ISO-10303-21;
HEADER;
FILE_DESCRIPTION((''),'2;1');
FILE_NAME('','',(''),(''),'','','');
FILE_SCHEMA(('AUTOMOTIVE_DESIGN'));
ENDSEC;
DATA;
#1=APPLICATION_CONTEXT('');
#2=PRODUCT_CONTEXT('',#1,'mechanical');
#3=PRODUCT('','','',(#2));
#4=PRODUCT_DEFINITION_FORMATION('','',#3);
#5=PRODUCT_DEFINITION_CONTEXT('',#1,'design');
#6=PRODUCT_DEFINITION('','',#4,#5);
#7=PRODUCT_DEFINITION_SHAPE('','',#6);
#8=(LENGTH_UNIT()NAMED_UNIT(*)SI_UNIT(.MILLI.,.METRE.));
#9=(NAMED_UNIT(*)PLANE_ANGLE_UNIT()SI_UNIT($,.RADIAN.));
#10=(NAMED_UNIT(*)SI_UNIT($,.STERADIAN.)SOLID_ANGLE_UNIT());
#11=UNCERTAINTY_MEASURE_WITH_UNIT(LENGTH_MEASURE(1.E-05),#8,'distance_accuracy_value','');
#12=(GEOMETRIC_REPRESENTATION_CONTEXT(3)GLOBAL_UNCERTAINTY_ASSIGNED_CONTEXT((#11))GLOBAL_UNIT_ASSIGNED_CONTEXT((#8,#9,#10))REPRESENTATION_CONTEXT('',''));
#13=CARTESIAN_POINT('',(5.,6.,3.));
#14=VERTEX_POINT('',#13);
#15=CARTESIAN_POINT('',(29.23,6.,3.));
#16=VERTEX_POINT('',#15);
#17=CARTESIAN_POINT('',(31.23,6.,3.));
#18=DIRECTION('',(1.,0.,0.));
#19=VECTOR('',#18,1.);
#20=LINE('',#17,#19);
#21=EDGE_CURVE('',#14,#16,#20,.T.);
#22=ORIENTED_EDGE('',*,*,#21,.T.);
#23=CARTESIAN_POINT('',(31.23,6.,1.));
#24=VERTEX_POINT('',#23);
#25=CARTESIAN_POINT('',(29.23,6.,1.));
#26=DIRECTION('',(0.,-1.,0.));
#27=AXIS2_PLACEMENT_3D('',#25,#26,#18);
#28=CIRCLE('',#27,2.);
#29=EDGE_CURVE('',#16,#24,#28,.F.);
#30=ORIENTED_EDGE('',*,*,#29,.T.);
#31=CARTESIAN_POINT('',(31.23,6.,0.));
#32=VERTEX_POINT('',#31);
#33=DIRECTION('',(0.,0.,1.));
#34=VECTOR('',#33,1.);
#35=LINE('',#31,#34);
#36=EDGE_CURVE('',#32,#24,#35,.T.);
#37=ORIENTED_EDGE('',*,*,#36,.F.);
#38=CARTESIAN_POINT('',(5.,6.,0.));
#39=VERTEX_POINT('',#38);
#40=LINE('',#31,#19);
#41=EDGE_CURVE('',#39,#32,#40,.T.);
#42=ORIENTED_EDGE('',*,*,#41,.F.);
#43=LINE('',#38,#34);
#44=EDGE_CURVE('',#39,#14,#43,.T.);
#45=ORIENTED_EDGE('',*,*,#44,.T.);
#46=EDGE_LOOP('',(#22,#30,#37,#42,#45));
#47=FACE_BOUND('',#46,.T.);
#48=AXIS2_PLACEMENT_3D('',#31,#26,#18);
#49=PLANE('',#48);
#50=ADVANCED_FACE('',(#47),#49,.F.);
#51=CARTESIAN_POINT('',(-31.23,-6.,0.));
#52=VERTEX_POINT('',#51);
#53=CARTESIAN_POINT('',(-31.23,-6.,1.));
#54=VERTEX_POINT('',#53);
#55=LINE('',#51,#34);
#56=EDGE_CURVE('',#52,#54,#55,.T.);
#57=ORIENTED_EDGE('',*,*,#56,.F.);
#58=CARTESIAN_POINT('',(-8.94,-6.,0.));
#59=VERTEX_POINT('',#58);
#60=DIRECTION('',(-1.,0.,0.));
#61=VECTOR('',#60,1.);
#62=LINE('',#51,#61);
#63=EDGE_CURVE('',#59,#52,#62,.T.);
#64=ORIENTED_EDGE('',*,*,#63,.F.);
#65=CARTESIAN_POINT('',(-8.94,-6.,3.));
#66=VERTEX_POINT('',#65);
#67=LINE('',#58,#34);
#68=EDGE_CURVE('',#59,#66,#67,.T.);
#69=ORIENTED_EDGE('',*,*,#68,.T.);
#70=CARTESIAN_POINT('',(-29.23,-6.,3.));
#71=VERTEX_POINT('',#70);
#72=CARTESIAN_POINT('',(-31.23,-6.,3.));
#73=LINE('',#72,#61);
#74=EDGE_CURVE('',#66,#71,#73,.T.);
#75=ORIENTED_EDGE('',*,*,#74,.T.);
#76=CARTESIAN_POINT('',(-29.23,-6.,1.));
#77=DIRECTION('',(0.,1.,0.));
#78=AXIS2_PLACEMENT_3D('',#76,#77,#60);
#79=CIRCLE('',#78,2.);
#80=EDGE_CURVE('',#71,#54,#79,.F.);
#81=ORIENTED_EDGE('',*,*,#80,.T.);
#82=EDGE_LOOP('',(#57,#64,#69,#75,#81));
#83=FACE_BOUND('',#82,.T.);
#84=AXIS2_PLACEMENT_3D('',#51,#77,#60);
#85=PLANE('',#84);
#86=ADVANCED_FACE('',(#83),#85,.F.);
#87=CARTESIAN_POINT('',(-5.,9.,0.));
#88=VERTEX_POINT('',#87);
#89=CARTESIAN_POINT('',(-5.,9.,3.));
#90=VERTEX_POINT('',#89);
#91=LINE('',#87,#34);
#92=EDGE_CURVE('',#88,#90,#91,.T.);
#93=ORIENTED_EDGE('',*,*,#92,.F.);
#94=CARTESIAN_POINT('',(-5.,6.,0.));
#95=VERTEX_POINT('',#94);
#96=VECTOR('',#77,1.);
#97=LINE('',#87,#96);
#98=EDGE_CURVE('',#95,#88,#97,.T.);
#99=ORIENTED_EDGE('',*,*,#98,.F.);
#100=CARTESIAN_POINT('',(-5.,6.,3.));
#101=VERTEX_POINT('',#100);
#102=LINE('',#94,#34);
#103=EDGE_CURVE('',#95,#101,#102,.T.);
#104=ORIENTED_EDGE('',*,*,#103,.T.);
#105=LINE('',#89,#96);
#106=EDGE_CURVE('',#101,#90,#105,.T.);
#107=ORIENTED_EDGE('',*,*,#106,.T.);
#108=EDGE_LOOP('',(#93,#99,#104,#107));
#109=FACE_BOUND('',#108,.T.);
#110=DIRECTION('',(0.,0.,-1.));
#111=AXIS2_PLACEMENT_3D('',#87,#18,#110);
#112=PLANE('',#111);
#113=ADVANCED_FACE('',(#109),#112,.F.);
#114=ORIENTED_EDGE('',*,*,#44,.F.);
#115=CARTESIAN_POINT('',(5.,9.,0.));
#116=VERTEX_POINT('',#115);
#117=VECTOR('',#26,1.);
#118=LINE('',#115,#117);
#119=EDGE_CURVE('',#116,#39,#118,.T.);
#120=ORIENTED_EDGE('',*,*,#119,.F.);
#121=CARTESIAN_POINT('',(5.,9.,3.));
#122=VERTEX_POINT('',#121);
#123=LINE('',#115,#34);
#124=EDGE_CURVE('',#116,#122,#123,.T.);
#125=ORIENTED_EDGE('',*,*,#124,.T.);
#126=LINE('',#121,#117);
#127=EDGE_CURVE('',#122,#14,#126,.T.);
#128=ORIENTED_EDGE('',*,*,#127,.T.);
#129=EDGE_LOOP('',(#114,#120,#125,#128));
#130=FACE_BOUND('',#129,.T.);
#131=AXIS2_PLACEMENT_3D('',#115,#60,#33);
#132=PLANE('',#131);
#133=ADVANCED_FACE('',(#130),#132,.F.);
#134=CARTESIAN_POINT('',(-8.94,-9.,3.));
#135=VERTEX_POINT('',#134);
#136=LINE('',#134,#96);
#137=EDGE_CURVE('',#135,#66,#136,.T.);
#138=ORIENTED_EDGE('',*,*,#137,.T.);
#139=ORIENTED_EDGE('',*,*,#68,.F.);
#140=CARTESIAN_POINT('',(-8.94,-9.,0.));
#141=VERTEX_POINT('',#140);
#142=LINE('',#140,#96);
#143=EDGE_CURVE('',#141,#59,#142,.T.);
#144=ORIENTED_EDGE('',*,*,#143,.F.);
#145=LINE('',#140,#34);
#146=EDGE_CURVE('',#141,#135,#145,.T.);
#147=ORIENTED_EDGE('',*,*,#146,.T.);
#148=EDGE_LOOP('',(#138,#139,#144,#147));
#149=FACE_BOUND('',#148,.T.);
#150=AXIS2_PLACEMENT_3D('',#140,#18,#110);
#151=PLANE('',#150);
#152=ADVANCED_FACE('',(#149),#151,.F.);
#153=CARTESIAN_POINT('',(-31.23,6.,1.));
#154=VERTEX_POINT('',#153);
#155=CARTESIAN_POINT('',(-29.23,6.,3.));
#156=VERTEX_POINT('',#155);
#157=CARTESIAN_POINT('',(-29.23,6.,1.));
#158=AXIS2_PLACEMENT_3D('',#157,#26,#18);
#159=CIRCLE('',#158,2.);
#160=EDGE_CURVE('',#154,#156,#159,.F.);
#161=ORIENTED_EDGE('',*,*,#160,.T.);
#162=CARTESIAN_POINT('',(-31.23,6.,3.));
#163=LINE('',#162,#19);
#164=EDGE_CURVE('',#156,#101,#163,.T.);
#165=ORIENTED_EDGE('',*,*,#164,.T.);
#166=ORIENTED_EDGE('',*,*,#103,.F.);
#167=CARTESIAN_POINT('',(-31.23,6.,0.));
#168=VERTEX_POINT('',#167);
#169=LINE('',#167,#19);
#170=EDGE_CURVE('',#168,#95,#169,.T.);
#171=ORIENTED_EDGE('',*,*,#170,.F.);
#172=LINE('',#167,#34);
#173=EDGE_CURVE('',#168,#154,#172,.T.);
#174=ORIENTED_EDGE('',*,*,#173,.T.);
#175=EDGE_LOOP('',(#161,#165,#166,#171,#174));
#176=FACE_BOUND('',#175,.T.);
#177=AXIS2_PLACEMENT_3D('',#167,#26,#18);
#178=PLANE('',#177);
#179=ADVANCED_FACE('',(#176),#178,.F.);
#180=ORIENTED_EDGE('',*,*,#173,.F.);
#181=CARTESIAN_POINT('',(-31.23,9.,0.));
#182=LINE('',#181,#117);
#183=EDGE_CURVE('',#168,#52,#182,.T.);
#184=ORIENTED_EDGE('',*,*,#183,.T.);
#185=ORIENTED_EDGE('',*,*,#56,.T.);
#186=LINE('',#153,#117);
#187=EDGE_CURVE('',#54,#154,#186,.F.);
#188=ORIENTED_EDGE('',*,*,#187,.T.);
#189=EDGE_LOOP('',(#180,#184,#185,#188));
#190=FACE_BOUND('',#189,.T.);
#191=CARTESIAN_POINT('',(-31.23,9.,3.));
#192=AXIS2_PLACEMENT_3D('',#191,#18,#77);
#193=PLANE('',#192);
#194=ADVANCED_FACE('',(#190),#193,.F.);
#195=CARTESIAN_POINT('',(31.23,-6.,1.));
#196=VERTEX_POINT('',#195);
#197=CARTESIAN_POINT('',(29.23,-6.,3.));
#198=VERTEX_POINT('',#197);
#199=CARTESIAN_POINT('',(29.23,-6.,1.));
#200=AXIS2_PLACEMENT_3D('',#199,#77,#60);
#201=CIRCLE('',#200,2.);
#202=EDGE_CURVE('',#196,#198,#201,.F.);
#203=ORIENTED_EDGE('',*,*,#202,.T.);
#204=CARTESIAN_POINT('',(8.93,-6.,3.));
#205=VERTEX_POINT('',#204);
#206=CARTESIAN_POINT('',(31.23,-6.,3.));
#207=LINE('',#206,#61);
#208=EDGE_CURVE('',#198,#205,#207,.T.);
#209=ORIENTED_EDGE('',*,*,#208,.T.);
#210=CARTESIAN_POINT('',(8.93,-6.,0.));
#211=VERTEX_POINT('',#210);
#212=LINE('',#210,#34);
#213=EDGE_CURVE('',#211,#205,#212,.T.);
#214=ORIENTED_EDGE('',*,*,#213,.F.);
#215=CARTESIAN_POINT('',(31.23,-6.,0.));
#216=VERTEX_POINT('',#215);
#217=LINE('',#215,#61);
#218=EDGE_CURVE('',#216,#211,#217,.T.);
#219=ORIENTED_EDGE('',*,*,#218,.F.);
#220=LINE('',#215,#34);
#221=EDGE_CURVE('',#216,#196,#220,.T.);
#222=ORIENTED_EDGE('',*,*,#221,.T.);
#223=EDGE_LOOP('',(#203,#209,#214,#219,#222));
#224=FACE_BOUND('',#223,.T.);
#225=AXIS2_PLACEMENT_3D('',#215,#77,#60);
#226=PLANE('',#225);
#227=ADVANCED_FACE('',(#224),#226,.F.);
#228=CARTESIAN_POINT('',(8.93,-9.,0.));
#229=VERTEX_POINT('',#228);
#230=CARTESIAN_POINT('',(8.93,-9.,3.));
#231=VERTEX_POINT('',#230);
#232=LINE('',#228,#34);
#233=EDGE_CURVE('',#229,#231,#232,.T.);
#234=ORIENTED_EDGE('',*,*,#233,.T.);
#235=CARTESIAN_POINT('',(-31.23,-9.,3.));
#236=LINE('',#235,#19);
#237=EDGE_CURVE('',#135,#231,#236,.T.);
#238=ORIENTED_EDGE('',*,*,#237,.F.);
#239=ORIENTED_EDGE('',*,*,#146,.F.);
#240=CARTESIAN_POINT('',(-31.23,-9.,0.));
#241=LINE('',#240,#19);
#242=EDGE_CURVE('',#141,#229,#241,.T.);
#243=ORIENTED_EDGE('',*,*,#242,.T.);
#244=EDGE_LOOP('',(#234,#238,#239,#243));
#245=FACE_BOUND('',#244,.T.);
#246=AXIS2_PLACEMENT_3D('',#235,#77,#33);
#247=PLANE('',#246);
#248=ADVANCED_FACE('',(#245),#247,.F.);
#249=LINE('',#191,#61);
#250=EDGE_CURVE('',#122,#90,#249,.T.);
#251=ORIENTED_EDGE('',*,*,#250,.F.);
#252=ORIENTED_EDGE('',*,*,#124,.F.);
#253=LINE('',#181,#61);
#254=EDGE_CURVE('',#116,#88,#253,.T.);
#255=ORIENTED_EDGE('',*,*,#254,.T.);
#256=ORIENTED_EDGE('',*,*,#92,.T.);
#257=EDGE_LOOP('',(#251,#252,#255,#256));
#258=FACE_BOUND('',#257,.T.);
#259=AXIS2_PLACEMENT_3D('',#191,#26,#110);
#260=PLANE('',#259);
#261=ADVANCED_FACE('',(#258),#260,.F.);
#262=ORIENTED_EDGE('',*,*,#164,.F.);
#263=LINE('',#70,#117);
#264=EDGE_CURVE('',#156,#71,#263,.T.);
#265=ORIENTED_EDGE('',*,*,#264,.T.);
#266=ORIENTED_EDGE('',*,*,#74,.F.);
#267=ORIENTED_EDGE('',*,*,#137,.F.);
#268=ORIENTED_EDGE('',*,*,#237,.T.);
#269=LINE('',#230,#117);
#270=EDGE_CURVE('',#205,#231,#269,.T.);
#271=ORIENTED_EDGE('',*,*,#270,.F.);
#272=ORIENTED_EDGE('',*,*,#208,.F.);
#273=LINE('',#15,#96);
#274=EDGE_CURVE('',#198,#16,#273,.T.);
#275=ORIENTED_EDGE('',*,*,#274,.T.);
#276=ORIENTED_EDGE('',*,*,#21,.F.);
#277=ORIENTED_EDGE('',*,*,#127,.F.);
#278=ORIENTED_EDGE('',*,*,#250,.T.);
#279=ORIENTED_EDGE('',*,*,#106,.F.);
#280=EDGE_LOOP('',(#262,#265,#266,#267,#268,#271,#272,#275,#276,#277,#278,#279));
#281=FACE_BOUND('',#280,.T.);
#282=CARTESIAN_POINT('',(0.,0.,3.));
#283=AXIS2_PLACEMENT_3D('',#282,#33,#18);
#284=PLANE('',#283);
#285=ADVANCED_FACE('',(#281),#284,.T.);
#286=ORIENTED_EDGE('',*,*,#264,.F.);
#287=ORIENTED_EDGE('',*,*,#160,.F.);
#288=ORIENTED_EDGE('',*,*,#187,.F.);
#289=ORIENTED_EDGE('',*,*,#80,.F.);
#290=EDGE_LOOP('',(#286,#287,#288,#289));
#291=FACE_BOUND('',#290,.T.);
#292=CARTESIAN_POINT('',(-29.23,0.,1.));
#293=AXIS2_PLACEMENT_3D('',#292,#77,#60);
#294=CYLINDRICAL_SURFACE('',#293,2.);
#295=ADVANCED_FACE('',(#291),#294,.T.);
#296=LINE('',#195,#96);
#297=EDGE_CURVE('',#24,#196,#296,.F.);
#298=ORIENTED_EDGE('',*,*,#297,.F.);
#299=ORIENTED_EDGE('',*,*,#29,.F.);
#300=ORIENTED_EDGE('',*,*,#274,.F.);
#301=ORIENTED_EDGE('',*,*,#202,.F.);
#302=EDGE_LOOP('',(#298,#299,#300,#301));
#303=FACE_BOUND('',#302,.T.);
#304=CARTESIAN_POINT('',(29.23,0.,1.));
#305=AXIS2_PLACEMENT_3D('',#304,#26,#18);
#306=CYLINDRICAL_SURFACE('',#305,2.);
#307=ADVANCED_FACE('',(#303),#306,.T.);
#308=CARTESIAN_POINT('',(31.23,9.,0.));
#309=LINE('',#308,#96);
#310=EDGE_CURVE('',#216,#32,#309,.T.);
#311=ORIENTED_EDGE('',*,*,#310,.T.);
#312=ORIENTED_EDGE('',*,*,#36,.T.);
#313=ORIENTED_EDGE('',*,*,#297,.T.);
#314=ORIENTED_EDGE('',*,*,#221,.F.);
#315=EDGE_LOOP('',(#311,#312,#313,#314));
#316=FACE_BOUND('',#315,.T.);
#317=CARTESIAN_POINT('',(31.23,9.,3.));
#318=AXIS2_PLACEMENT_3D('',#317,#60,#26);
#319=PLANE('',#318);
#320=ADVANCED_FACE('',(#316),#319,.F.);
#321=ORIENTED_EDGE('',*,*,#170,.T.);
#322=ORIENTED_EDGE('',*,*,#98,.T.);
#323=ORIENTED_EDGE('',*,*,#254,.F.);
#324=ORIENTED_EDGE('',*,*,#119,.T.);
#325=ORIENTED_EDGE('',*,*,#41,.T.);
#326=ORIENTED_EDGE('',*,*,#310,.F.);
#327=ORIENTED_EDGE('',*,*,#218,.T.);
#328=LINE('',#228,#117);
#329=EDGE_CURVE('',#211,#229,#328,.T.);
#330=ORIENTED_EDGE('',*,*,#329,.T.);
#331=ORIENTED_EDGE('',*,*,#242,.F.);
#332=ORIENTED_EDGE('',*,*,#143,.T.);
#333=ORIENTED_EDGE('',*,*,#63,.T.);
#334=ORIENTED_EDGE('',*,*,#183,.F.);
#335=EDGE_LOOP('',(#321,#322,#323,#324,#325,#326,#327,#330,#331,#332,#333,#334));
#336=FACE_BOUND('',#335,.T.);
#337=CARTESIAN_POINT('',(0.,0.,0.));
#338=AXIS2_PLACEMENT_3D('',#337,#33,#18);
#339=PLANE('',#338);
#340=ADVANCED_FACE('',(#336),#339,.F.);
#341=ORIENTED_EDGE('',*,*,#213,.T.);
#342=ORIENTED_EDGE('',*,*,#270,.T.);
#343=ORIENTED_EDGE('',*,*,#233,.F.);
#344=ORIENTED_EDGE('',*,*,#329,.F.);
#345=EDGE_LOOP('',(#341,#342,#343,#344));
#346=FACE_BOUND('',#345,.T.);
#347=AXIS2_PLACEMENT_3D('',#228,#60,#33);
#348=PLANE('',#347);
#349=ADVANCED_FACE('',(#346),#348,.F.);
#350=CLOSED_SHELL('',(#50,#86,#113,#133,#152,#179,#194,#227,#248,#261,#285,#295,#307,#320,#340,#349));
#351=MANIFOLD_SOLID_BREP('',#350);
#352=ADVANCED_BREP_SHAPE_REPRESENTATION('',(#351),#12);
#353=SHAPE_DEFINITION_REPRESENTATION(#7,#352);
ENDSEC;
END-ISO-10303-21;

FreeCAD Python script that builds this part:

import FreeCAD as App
import Part
import Sketcher
Q = App.Units.Quantity


def edges_at(feature, points):
    """Names of the edges that pass closest to the given points."""
    edges = feature.Shape.Edges
    near = lambda p: min(range(len(edges)), key=lambda i: edges[i].distToShape(Part.Vertex(*p))[0])
    return sorted({f"Edge{near(p) + 1}" for p in points})

doc = App.newDocument("Part")
body = doc.addObject("PartDesign::Body", "Body")

# Sketch on XY plane
sketch1 = body.newObject("Sketcher::SketchObject", "Sketch")
sketch1.AttachmentSupport = (doc.getObject("XY_Plane"), [""])
sketch1.MapMode = "FlatFace"
sketch1.addGeometry([
    Part.LineSegment(App.Vector(-31.23, 9, 0), App.Vector(-31.23, -9, 0)),
    Part.LineSegment(App.Vector(-31.23, -9, 0), App.Vector(31.23, -9, 0)),
    Part.LineSegment(App.Vector(31.23, -9, 0), App.Vector(31.23, 9, 0)),
    Part.LineSegment(App.Vector(31.23, 9, 0), App.Vector(-31.23, 9, 0)),
], False)
sketch1.addConstraint([
    Sketcher.Constraint("Coincident", 0, 2, 1, 1),
    Sketcher.Constraint("Coincident", 1, 2, 2, 1),
    Sketcher.Constraint("Coincident", 2, 2, 3, 1),
    Sketcher.Constraint("Coincident", 3, 2, 0, 1),
    Sketcher.Constraint("Vertical", 0),
    Sketcher.Constraint("Horizontal", 1),
    Sketcher.Constraint("Vertical", 2),
    Sketcher.Constraint("Horizontal", 3),
    Sketcher.Constraint("Symmetric", 0, 2, 2, 2, -1, 1),
    Sketcher.Constraint("DistanceY", 0, 2, 0, 1, Q("18 mm")),
    Sketcher.Constraint("DistanceX", 1, 1, 1, 2, Q("62.46 mm")),
])
pad1 = body.newObject("PartDesign::Pad", "Pad")
pad1.Profile = sketch1
pad1.Length = 3

# Sketch on XY plane
sketch2 = body.newObject("Sketcher::SketchObject", "Sketch001")
sketch2.AttachmentSupport = (doc.getObject("XY_Plane"), [""])
sketch2.MapMode = "FlatFace"
sketch2.AttachmentOffset = App.Placement(App.Vector(0, 0, 3), App.Rotation())
sketch2.addGeometry([
    Part.LineSegment(App.Vector(8.93, -6, 0), App.Vector(8.93, -9, 0)),  # 0
    Part.LineSegment(App.Vector(8.93, -9, 0), App.Vector(31.23, -9, 0)),  # 1
    Part.LineSegment(App.Vector(31.23, -9, 0), App.Vector(31.23, -6, 0)),  # 2
    Part.LineSegment(App.Vector(31.23, -6, 0), App.Vector(8.93, -6, 0)),  # 3
    Part.LineSegment(App.Vector(-31.23, -6, 0), App.Vector(-31.23, -9, 0)),  # 4
    Part.LineSegment(App.Vector(-31.23, -9, 0), App.Vector(-8.94, -9, 0)),  # 5
    Part.LineSegment(App.Vector(-8.94, -9, 0), App.Vector(-8.94, -6, 0)),  # 6
    Part.LineSegment(App.Vector(-8.94, -6, 0), App.Vector(-31.23, -6, 0)),  # 7
    Part.LineSegment(App.Vector(5, 9, 0), App.Vector(5, 6, 0)),  # 8
    Part.LineSegment(App.Vector(5, 6, 0), App.Vector(31.23, 6, 0)),  # 9
    Part.LineSegment(App.Vector(31.23, 6, 0), App.Vector(31.23, 9, 0)),  # 10
    Part.LineSegment(App.Vector(31.23, 9, 0), App.Vector(5, 9, 0)),  # 11
    Part.LineSegment(App.Vector(-31.23, 9, 0), App.Vector(-31.23, 6, 0)),  # 12
    Part.LineSegment(App.Vector(-31.23, 6, 0), App.Vector(-5, 6, 0)),  # 13
    Part.LineSegment(App.Vector(-5, 6, 0), App.Vector(-5, 9, 0)),  # 14
    Part.LineSegment(App.Vector(-5, 9, 0), App.Vector(-31.23, 9, 0)),  # 15
], False)
sketch2.addConstraint([
    Sketcher.Constraint("Coincident", 0, 2, 1, 1),
    Sketcher.Constraint("Coincident", 1, 2, 2, 1),
    Sketcher.Constraint("Coincident", 2, 2, 3, 1),
    Sketcher.Constraint("Coincident", 3, 2, 0, 1),
    Sketcher.Constraint("Coincident", 4, 2, 5, 1),
    Sketcher.Constraint("Coincident", 5, 2, 6, 1),
    Sketcher.Constraint("Coincident", 6, 2, 7, 1),
    Sketcher.Constraint("Coincident", 7, 2, 4, 1),
    Sketcher.Constraint("Coincident", 8, 2, 9, 1),
    Sketcher.Constraint("Coincident", 9, 2, 10, 1),
    Sketcher.Constraint("Coincident", 10, 2, 11, 1),
    Sketcher.Constraint("Coincident", 11, 2, 8, 1),
    Sketcher.Constraint("Coincident", 12, 2, 13, 1),
    Sketcher.Constraint("Coincident", 13, 2, 14, 1),
    Sketcher.Constraint("Coincident", 14, 2, 15, 1),
    Sketcher.Constraint("Coincident", 15, 2, 12, 1),
    Sketcher.Constraint("Vertical", 0),
    Sketcher.Constraint("Horizontal", 1),
    Sketcher.Constraint("Vertical", 2),
    Sketcher.Constraint("Horizontal", 3),
    Sketcher.Constraint("Vertical", 4),
    Sketcher.Constraint("Horizontal", 5),
    Sketcher.Constraint("Vertical", 6),
    Sketcher.Constraint("Horizontal", 7),
    Sketcher.Constraint("Vertical", 8),
    Sketcher.Constraint("Horizontal", 9),
    Sketcher.Constraint("Vertical", 10),
    Sketcher.Constraint("Horizontal", 11),
    Sketcher.Constraint("Vertical", 12),
    Sketcher.Constraint("Horizontal", 13),
    Sketcher.Constraint("Vertical", 14),
    Sketcher.Constraint("Horizontal", 15),
    Sketcher.Constraint("Symmetric", 7, 2, 9, 2, -1, 1),
    Sketcher.Constraint("Symmetric", 2, 2, 12, 2, -1, 1),
    Sketcher.Constraint("Symmetric", 1, 2, 4, 2, -2),
    Sketcher.Constraint("Symmetric", 8, 2, 13, 2, -2),
    Sketcher.Constraint("Horizontal", 11, 2, 14, 2),
    Sketcher.Constraint("Equal", 6, 8),
    Sketcher.Constraint("DistanceY", 0, 2, 0, 1, Q("3 mm")),
    Sketcher.Constraint("DistanceX", 1, 1, 1, 2, Q("22.3 mm")),
    Sketcher.Constraint("DistanceY", 0, 2, -1, 1, Q("9 mm")),
    Sketcher.Constraint("DistanceX", -1, 1, 8, 2, Q("5 mm")),
    Sketcher.Constraint("DistanceX", 5, 1, 5, 2, Q("22.29 mm")),
    Sketcher.Constraint("DistanceX", 9, 1, 9, 2, Q("26.23 mm")),
])
pocket1 = body.newObject("PartDesign::Pocket", "Pocket")
pocket1.Profile = sketch2
pocket1.Length = 3
doc.recompute()

fillet = body.newObject("PartDesign::Fillet", "Fillet")
fillet.Base = (pocket1, edges_at(pocket1, [(31.23, 0, 3)]))
fillet.Radius = 2
doc.recompute()

fillet2 = body.newObject("PartDesign::Fillet", "Fillet001")
fillet2.Base = (fillet, edges_at(fillet, [(-31.23, 0, 3)]))
fillet2.Radius = 2

doc.recompute()
